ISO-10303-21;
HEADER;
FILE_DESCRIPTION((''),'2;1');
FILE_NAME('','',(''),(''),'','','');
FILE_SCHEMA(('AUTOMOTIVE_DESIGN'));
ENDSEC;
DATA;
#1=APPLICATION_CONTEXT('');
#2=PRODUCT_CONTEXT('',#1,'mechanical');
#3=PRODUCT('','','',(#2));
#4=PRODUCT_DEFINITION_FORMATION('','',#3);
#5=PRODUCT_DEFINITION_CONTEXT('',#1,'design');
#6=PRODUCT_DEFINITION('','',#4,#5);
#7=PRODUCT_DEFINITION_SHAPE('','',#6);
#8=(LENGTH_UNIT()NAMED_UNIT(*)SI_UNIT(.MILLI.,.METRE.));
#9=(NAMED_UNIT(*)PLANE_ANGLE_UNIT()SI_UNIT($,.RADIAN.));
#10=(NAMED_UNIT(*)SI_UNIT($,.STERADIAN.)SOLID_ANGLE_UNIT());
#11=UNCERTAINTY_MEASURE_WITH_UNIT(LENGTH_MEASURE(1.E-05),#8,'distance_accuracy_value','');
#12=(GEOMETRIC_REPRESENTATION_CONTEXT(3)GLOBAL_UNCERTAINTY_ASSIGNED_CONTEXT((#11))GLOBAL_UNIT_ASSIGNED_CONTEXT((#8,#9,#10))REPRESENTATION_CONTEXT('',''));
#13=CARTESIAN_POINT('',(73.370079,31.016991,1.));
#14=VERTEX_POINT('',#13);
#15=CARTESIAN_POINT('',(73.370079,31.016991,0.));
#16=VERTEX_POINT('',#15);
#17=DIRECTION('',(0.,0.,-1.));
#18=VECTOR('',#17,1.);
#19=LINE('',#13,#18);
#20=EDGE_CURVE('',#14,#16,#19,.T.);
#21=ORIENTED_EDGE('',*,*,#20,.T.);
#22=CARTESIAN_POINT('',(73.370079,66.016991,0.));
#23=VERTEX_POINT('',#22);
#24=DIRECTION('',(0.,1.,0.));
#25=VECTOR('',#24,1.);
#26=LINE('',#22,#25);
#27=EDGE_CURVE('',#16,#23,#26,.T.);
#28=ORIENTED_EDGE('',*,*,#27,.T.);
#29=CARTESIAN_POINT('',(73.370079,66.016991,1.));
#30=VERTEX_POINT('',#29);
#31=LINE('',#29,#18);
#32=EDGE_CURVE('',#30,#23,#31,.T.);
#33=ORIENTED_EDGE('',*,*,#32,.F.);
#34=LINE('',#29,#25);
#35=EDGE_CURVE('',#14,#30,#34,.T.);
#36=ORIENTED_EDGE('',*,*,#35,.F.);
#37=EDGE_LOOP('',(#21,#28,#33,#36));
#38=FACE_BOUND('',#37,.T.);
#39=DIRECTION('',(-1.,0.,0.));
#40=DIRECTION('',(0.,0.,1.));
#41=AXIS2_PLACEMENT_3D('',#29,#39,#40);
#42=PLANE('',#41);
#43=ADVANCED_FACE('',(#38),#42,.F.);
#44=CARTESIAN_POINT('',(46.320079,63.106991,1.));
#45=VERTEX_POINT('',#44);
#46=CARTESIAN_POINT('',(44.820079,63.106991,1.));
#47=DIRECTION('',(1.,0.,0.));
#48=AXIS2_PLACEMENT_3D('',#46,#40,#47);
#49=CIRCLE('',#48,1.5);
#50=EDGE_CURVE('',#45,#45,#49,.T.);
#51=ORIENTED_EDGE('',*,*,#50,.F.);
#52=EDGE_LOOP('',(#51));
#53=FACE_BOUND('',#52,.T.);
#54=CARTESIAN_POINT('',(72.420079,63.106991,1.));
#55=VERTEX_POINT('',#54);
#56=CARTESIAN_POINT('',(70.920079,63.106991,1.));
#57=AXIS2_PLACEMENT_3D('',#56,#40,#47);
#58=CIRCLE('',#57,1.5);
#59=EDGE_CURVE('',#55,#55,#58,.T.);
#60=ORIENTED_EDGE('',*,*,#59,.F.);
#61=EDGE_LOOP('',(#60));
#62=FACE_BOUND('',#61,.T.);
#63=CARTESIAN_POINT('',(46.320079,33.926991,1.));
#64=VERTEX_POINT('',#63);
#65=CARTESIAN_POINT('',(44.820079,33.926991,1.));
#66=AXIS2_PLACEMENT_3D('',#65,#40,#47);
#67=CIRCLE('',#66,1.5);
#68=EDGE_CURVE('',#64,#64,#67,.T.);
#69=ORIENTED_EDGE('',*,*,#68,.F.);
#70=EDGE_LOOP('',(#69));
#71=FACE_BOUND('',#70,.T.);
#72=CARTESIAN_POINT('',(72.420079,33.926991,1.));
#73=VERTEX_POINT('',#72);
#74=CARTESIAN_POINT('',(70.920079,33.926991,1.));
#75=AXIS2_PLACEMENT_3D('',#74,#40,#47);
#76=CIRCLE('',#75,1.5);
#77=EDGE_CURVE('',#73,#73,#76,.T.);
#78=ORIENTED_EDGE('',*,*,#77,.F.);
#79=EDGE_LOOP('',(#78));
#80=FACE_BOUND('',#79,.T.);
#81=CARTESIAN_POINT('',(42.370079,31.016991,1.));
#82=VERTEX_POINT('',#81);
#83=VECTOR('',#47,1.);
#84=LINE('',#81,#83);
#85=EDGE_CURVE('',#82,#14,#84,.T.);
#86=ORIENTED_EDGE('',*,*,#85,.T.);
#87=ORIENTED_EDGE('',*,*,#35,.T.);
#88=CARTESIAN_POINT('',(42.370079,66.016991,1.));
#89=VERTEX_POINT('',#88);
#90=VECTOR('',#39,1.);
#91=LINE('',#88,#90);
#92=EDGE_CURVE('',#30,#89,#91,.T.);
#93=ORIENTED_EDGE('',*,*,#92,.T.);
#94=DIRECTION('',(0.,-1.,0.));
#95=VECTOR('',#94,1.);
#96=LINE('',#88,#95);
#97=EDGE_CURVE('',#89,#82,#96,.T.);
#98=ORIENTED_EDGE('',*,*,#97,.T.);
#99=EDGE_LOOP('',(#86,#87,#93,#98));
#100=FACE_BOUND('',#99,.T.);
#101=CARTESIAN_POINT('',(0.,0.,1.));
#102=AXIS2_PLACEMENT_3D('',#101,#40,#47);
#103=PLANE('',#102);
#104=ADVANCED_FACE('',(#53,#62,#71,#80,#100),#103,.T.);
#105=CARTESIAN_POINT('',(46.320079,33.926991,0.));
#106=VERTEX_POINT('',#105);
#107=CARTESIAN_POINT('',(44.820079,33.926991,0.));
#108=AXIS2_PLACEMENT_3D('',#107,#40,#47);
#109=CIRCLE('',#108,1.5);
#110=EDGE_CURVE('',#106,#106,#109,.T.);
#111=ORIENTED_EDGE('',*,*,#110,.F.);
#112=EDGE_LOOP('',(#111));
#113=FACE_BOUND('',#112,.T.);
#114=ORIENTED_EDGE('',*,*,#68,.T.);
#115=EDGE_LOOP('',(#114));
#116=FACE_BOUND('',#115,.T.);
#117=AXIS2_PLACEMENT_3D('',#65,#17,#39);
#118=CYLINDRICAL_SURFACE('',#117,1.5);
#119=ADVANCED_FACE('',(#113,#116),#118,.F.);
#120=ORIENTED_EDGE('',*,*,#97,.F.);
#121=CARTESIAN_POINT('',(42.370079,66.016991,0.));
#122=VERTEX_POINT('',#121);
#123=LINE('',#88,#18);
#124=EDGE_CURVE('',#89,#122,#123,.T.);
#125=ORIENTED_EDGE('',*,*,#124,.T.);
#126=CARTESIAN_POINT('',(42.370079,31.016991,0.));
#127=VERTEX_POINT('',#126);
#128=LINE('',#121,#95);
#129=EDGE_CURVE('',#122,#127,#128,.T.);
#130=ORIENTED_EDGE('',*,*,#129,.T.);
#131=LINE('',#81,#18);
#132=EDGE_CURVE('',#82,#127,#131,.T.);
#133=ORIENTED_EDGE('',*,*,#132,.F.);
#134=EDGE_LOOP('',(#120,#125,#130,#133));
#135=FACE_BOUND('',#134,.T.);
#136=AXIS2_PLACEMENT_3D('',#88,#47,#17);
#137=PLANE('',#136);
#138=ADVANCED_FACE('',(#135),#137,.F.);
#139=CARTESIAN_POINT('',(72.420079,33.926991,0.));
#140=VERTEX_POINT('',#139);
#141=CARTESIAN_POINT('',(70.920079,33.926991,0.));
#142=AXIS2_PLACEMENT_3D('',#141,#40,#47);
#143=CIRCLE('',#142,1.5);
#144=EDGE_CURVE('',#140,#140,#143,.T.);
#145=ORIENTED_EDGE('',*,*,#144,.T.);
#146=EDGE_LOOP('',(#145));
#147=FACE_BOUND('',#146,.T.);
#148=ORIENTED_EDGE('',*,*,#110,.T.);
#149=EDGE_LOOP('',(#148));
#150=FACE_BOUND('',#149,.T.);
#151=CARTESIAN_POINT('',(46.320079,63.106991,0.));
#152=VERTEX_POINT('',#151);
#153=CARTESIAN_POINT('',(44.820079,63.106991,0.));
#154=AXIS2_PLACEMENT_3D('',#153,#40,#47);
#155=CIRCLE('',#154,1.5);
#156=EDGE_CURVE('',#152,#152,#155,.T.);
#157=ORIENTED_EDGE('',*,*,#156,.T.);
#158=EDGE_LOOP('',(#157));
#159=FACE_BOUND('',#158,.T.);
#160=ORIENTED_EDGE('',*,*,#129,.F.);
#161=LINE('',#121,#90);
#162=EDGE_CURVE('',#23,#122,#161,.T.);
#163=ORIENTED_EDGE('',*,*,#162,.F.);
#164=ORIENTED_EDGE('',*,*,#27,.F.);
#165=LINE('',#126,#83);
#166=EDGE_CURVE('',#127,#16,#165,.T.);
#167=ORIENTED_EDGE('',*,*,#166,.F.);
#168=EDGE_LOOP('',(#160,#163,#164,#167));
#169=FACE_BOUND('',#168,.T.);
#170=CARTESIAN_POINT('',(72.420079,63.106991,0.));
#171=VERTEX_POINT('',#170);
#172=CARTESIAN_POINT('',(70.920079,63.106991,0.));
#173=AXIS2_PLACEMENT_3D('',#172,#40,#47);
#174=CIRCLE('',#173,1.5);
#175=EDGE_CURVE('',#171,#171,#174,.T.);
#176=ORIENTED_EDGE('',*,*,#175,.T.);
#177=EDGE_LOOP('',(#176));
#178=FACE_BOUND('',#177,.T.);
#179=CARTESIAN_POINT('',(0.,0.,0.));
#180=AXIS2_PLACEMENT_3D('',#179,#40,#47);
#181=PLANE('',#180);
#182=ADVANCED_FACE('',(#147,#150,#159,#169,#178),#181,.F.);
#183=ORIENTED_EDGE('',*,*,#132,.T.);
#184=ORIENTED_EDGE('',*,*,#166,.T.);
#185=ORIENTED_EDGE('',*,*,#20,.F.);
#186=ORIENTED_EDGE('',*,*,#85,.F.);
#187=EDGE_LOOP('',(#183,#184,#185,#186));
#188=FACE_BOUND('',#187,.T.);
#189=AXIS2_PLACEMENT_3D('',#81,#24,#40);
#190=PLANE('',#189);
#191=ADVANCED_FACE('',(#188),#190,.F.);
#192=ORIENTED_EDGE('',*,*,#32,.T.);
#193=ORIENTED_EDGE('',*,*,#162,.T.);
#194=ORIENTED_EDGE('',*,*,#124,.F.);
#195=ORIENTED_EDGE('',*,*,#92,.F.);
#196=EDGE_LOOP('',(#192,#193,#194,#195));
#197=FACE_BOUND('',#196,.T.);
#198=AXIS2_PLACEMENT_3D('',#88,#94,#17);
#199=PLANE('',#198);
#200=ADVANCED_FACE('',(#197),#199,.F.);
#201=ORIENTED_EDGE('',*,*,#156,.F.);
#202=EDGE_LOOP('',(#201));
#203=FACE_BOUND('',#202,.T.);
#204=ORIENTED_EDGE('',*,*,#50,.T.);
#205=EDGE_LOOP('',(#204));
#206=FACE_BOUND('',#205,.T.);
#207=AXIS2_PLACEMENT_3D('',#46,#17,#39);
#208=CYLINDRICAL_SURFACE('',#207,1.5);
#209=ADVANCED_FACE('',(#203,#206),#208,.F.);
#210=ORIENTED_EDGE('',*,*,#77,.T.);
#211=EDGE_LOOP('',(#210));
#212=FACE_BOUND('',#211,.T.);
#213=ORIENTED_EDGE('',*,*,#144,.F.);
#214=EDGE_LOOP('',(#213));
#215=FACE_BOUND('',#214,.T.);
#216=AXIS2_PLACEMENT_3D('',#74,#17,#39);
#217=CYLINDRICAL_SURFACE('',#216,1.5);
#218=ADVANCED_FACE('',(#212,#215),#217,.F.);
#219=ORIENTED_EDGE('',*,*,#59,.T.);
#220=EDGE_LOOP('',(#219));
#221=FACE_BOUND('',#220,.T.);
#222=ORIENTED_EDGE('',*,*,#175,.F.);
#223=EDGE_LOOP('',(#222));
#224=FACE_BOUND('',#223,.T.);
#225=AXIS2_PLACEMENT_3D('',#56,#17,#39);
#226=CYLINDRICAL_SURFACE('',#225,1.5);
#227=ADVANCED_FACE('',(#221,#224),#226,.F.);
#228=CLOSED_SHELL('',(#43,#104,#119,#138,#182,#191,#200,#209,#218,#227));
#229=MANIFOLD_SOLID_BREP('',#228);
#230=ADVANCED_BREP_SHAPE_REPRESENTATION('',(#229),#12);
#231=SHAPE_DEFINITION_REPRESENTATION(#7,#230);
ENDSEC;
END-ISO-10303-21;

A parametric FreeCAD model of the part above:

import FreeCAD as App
import Part
import Sketcher

V = App.Vector


def add_polygon(sketch, points):
    """Adds a closed chain of lines whose ends are joined by coincident constraints."""
    first, n = sketch.GeometryCount, len(points)
    for a, b in zip(points, points[1:] + points[:1]):
        sketch.addGeometry(Part.LineSegment(App.Vector(*a, 0), App.Vector(*b, 0)), False)
    for i in range(n):
        sketch.addConstraint(Sketcher.Constraint("Coincident", first + i, 2, first + (i + 1) % n, 1))

doc = App.newDocument("Part")
body = doc.addObject("PartDesign::Body", "Body")

# Sketch on XY plane
sketch1 = body.newObject("Sketcher::SketchObject", "Sketch")
sketch1.AttachmentSupport = (doc.getObject("XY_Plane"), [""])
sketch1.MapMode = "FlatFace"
add_polygon(sketch1, [(42.4, 66), (42.4, 31), (73.4, 31), (73.4, 66)])  # lines 0-3
sketch1.addGeometry(Part.Circle(V(44.8, 33.9, 0), V(0, 0, 1), 1.5), False)  # 4
sketch1.addGeometry(Part.Circle(V(70.9, 33.9, 0), V(0, 0, 1), 1.5), False)  # 5
sketch1.addGeometry(Part.Circle(V(44.8, 63.1, 0), V(0, 0, 1), 1.5), False)  # 6
sketch1.addGeometry(Part.Circle(V(70.9, 63.1, 0), V(0, 0, 1), 1.5), False)  # 7
sketch1.addConstraint([
    Sketcher.Constraint("Vertical", 0),
    Sketcher.Constraint("Horizontal", 1),
    Sketcher.Constraint("Vertical", 2),
    Sketcher.Constraint("Horizontal", 3),
    Sketcher.Constraint("Equal", 4, 5),
    Sketcher.Constraint("Equal", 5, 6),
    Sketcher.Constraint("Equal", 6, 7),
    Sketcher.Constraint("Horizontal", 4, 3, 5, 3),
    Sketcher.Constraint("Horizontal", 6, 3, 7, 3),
    Sketcher.Constraint("Vertical", 4, 3, 6, 3),
    Sketcher.Constraint("Vertical", 5, 3, 7, 3),
    Sketcher.Constraint("Diameter", 4, 3.0),
    Sketcher.Constraint("DistanceX", 1, 1, 1, 2, 31.0),
    Sketcher.Constraint("DistanceY", 0, 2, 0, 1, 35.0),
    Sketcher.Constraint("DistanceX", 4, 3, 5, 3, 26.1),
    Sketcher.Constraint("DistanceY", 4, 3, 6, 3, 29.18),
    Sketcher.Constraint("DistanceX", 0, 2, 4, 3, 2.45),
    Sketcher.Constraint("DistanceY", 0, 2, 4, 3, 2.91),
    Sketcher.Constraint("DistanceX", -1, 1, 4, 3, 44.820079),
    Sketcher.Constraint("DistanceY", -1, 1, 4, 3, 33.926991),
])
pad1 = body.newObject("PartDesign::Pad", "Pad")
pad1.Profile = sketch1
pad1.Length = 1

doc.recompute()
